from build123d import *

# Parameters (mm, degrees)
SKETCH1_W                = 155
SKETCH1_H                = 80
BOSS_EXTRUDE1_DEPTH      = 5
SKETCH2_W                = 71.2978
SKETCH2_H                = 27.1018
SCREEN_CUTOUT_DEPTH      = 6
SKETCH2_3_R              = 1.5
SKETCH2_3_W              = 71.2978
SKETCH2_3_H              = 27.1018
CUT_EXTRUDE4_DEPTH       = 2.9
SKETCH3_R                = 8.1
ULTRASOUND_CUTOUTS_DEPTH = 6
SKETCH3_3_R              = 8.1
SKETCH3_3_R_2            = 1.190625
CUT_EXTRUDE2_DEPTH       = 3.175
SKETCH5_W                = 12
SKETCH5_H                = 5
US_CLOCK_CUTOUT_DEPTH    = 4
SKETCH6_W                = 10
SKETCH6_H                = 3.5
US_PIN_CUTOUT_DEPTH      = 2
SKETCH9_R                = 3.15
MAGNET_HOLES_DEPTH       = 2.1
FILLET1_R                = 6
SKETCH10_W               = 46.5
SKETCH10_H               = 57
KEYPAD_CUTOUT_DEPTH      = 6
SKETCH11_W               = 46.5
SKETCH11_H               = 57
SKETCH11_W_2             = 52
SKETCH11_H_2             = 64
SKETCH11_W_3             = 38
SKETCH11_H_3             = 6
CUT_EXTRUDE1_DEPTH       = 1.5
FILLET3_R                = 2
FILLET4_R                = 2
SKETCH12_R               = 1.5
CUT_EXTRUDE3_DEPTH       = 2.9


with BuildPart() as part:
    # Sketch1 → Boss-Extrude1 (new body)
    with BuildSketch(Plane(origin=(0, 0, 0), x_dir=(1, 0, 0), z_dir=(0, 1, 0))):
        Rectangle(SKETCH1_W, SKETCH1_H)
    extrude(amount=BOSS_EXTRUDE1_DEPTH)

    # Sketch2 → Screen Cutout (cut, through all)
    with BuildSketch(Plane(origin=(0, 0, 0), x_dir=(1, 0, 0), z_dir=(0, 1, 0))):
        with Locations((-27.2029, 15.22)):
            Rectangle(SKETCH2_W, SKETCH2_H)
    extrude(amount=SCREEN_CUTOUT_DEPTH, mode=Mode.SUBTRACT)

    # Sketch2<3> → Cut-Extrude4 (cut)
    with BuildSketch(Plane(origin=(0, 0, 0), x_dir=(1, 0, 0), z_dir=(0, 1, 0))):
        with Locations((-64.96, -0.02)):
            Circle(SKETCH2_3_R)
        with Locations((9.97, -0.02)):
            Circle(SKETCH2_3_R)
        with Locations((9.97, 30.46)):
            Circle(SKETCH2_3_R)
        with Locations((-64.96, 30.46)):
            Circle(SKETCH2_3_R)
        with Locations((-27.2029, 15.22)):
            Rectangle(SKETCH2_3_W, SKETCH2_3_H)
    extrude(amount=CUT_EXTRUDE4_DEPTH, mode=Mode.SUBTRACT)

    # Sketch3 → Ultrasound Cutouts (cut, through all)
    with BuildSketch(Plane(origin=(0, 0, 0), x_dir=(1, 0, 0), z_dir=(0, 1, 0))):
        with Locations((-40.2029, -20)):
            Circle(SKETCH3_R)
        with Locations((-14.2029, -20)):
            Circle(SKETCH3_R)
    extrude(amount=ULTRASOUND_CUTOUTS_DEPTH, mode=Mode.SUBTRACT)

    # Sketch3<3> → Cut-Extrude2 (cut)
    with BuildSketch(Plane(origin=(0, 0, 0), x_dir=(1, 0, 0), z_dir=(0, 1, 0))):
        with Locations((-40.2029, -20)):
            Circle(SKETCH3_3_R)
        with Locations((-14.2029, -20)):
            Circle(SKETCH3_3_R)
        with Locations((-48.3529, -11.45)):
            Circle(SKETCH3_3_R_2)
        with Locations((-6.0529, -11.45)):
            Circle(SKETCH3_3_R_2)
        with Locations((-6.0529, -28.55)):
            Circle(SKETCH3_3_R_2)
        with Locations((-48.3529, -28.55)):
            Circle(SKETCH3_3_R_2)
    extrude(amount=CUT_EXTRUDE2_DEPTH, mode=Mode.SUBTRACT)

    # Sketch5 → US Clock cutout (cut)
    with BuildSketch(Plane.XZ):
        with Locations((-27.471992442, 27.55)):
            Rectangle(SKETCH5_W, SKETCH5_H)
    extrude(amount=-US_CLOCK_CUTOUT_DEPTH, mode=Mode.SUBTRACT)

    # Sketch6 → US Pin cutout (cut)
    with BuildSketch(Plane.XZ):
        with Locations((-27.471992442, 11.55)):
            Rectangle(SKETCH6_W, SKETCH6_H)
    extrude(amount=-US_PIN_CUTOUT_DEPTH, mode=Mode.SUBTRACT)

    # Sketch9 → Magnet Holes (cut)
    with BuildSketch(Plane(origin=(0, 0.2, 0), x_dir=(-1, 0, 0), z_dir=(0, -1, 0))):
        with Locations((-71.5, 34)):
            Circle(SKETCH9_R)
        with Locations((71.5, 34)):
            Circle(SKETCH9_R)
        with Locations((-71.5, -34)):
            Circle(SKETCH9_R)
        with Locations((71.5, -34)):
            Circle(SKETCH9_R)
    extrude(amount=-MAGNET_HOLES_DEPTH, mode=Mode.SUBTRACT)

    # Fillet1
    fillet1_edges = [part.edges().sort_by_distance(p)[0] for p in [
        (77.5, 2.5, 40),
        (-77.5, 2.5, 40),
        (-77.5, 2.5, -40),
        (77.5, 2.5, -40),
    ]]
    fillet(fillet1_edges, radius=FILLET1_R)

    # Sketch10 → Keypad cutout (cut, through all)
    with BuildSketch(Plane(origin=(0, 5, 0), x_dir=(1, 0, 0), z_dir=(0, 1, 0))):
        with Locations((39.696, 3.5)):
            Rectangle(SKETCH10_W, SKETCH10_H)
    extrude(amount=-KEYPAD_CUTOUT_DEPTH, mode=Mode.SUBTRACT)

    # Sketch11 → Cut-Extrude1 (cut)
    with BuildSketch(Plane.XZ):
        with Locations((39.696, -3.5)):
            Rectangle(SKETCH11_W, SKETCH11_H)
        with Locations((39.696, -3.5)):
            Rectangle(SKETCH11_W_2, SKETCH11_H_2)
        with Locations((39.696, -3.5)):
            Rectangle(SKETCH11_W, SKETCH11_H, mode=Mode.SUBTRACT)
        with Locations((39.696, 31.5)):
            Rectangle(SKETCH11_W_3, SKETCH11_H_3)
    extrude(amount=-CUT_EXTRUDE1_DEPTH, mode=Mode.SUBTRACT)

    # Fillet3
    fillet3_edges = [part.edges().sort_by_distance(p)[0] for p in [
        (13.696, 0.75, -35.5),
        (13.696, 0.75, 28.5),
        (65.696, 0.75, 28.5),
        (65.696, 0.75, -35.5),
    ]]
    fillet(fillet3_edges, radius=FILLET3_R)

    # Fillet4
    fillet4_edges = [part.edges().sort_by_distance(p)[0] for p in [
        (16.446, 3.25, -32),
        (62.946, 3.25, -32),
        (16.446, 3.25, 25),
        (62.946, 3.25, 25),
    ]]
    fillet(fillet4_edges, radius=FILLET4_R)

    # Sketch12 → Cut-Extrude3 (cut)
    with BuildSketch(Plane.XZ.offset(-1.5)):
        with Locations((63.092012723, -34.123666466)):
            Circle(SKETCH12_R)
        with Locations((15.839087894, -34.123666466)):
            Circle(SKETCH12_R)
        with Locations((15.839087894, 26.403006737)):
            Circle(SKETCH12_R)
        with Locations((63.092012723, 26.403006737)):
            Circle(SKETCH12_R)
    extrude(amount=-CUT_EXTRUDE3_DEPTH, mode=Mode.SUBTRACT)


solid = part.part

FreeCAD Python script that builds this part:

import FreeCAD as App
import Part
import Sketcher

V = App.Vector
Q = App.Units.Quantity


def edges_at(feature, points):
    """Names of the edges that pass closest to the given points."""
    edges = feature.Shape.Edges
    near = lambda p: min(range(len(edges)), key=lambda i: edges[i].distToShape(Part.Vertex(*p))[0])
    return sorted({f"Edge{near(p) + 1}" for p in points})


def add_polygon(sketch, points):
    """Adds a closed chain of lines whose ends are joined by coincident constraints."""
    first, n = sketch.GeometryCount, len(points)
    for a, b in zip(points, points[1:] + points[:1]):
        sketch.addGeometry(Part.LineSegment(App.Vector(*a, 0), App.Vector(*b, 0)), False)
    for i in range(n):
        sketch.addConstraint(Sketcher.Constraint("Coincident", first + i, 2, first + (i + 1) % n, 1))

doc = App.newDocument("Part")
body = doc.addObject("PartDesign::Body", "Body")

# Sketch on XZ plane
sketch1 = doc.addObject("Sketcher::SketchObject", "Sketch")
body.addObject(sketch1)
sketch1.AttachmentSupport = (doc.XZ_Plane, [""])
sketch1.MapMode = "FlatFace"
add_polygon(sketch1, [(-78, -40), (-78, 40), (78, 40), (78, -40)])  # lines 0-3
sketch1.addConstraint(Sketcher.Constraint("Vertical", 0))
sketch1.addConstraint(Sketcher.Constraint("Horizontal", 1))
sketch1.addConstraint(Sketcher.Constraint("Vertical", 2))
sketch1.addConstraint(Sketcher.Constraint("Horizontal", 3))
sketch1.addConstraint(Sketcher.Constraint("Symmetric", 0, 2, 2, 2, -1, 1))
sketch1.addConstraint(Sketcher.Constraint("DistanceX", 1, 1, 1, 2, Q("155 mm")))
sketch1.addConstraint(Sketcher.Constraint("DistanceY", 0, 1, 0, 2, Q("80 mm")))
pad1 = doc.addObject("PartDesign::Pad", "Pad")
body.addObject(pad1)
pad1.Profile = sketch1
pad1.Length = 5
pad1.Reversed = True

# Sketch on XZ plane
sketch2 = doc.addObject("Sketcher::SketchObject", "Sketch001")
body.addObject(sketch2)
sketch2.AttachmentSupport = (doc.XZ_Plane, [""])
sketch2.MapMode = "FlatFace"
add_polygon(sketch2, [(-63, -29), (-63, -2), (8, -2), (8, -29)])  # lines 0-3
sketch2.addConstraint(Sketcher.Constraint("Vertical", 0))
sketch2.addConstraint(Sketcher.Constraint("Horizontal", 1))
sketch2.addConstraint(Sketcher.Constraint("Vertical", 2))
sketch2.addConstraint(Sketcher.Constraint("Horizontal", 3))
sketch2.addConstraint(Sketcher.Constraint("DistanceX", 1, 1, 1, 2, Q("71.2978 mm")))
sketch2.addConstraint(Sketcher.Constraint("DistanceY", 0, 1, 0, 2, Q("27.1018 mm")))
sketch2.addConstraint(Sketcher.Constraint("DistanceX", -1, 1, 1, 2, Q("8.446 mm")))
sketch2.addConstraint(Sketcher.Constraint("DistanceY", 0, 2, -1, 1, Q("1.6691 mm")))
pocket1 = doc.addObject("PartDesign::Pocket", "Pocket")
body.addObject(pocket1)
pocket1.Profile = sketch2
pocket1.Type = "ThroughAll"

# Sketch on XZ plane
sketch3 = doc.addObject("Sketcher::SketchObject", "Sketch002")
body.addObject(sketch3)
sketch3.AttachmentSupport = (doc.XZ_Plane, [""])
sketch3.MapMode = "FlatFace"
sketch3.addGeometry(Part.Circle(V(-65, 0, 0), V(0, 0, 1), 1.5), False)  # 0
sketch3.addGeometry(Part.Circle(V(10, 0, 0), V(0, 0, 1), 1.5), False)  # 1
sketch3.addGeometry(Part.Circle(V(10, -30.5, 0), V(0, 0, 1), 1.5), False)  # 2
sketch3.addGeometry(Part.Circle(V(-65, -30.5, 0), V(0, 0, 1), 1.5), False)  # 3
add_polygon(sketch3, [(-62.9, -28.8), (-62.9, -1.7), (8.4, -1.7), (8.4, -28.8)])  # lines 4-7
sketch3.addConstraint(Sketcher.Constraint("Vertical", 4))
sketch3.addConstraint(Sketcher.Constraint("Horizontal", 5))
sketch3.addConstraint(Sketcher.Constraint("Vertical", 6))
sketch3.addConstraint(Sketcher.Constraint("Horizontal", 7))
sketch3.addConstraint(Sketcher.Constraint("Equal", 0, 1))
sketch3.addConstraint(Sketcher.Constraint("Equal", 1, 2))
sketch3.addConstraint(Sketcher.Constraint("Equal", 2, 3))
sketch3.addConstraint(Sketcher.Constraint("Horizontal", 0, 3, 1, 3))
sketch3.addConstraint(Sketcher.Constraint("Horizontal", 2, 3, 3, 3))
sketch3.addConstraint(Sketcher.Constraint("Vertical", 1, 3, 2, 3))
sketch3.addConstraint(Sketcher.Constraint("Vertical", 0, 3, 3, 3))
sketch3.addConstraint(Sketcher.Constraint("Diameter", 0, Q("3 mm")))
sketch3.addConstraint(Sketcher.Constraint("DistanceX", 0, 3, -1, 1, Q("64.96 mm")))
sketch3.addConstraint(Sketcher.Constraint("DistanceY", -1, 1, 0, 3, Q("0.02 mm")))
sketch3.addConstraint(Sketcher.Constraint("DistanceX", -1, 1, 1, 3, Q("9.97 mm")))
sketch3.addConstraint(Sketcher.Constraint("DistanceY", 2, 3, -1, 1, Q("30.46 mm")))
sketch3.addConstraint(Sketcher.Constraint("DistanceX", 5, 1, 5, 2, Q("71.2978 mm")))
sketch3.addConstraint(Sketcher.Constraint("DistanceY", 4, 1, 4, 2, Q("27.1018 mm")))
sketch3.addConstraint(Sketcher.Constraint("DistanceX", -1, 1, 5, 2, Q("8.446 mm")))
sketch3.addConstraint(Sketcher.Constraint("DistanceY", 4, 2, -1, 1, Q("1.6691 mm")))
pocket2 = doc.addObject("PartDesign::Pocket", "Pocket001")
body.addObject(pocket2)
pocket2.Profile = sketch3
pocket2.Length = 2.9

# Sketch on XZ plane
sketch4 = doc.addObject("Sketcher::SketchObject", "Sketch003")
body.addObject(sketch4)
sketch4.AttachmentSupport = (doc.XZ_Plane, [""])
sketch4.MapMode = "FlatFace"
sketch4.addGeometry(Part.Circle(V(-40, 20, 0), V(0, 0, 1), 8), False)
sketch4.addGeometry(Part.Circle(V(-14, 20, 0), V(0, 0, 1), 8), False)
sketch4.addConstraint(Sketcher.Constraint("Equal", 0, 1))
sketch4.addConstraint(Sketcher.Constraint("Horizontal", 0, 3, 1, 3))
sketch4.addConstraint(Sketcher.Constraint("Diameter", 0, Q("16.2 mm")))
sketch4.addConstraint(Sketcher.Constraint("DistanceY", -1, 1, 0, 3, Q("20 mm")))
sketch4.addConstraint(Sketcher.Constraint("DistanceX", 0, 3, 1, 3, Q("26 mm")))
sketch4.addConstraint(Sketcher.Constraint("DistanceX", 0, 3, -1, 1, Q("40.2029 mm")))
pocket3 = doc.addObject("PartDesign::Pocket", "Pocket002")
body.addObject(pocket3)
pocket3.Profile = sketch4
pocket3.Type = "ThroughAll"

# Sketch on XZ plane
sketch5 = doc.addObject("Sketcher::SketchObject", "Sketch004")
body.addObject(sketch5)
sketch5.AttachmentSupport = (doc.XZ_Plane, [""])
sketch5.MapMode = "FlatFace"
sketch5.addGeometry(Part.Circle(V(-40.2, 20, 0), V(0, 0, 1), 8.1), False)
sketch5.addGeometry(Part.Circle(V(-14.2, 20, 0), V(0, 0, 1), 8.1), False)
sketch5.addGeometry(Part.Circle(V(-48.4, 11.4, 0), V(0, 0, 1), 1.2), False)
sketch5.addGeometry(Part.Circle(V(-6.1, 11.4, 0), V(0, 0, 1), 1.2), False)
sketch5.addGeometry(Part.Circle(V(-6.1, 28.6, 0), V(0, 0, 1), 1.2), False)
sketch5.addGeometry(Part.Circle(V(-48.4, 28.6, 0), V(0, 0, 1), 1.2), False)
sketch5.addConstraint(Sketcher.Constraint("Equal", 0, 1))
sketch5.addConstraint(Sketcher.Constraint("Equal", 2, 3))
sketch5.addConstraint(Sketcher.Constraint("Equal", 3, 4))
sketch5.addConstraint(Sketcher.Constraint("Equal", 4, 5))
sketch5.addConstraint(Sketcher.Constraint("Horizontal", 0, 3, 1, 3))
sketch5.addConstraint(Sketcher.Constraint("Horizontal", 2, 3, 3, 3))
sketch5.addConstraint(Sketcher.Constraint("Horizontal", 4, 3, 5, 3))
sketch5.addConstraint(Sketcher.Constraint("Vertical", 3, 3, 4, 3))
sketch5.addConstraint(Sketcher.Constraint("Vertical", 2, 3, 5, 3))
sketch5.addConstraint(Sketcher.Constraint("Diameter", 0, Q("16.2 mm")))
sketch5.addConstraint(Sketcher.Constraint("DistanceY", -1, 1, 0, 3, Q("20 mm")))
sketch5.addConstraint(Sketcher.Constraint("DistanceX", 0, 3, 1, 3, Q("26 mm")))
sketch5.addConstraint(Sketcher.Constraint("DistanceX", 2, 3, 3, 3, Q("42.3 mm")))
sketch5.addConstraint(Sketcher.Constraint("DistanceY", 3, 3, 4, 3, Q("17.1 mm")))
sketch5.addConstraint(Sketcher.Constraint("Diameter", 2, Q("2.38125 mm")))
sketch5.addConstraint(Sketcher.Constraint("DistanceY", -1, 1, 2, 3, Q("11.45 mm")))
sketch5.addConstraint(Sketcher.Constraint("DistanceX", 2, 3, 0, 3, Q("8.15 mm")))
sketch5.addConstraint(Sketcher.Constraint("DistanceX", 0, 3, -1, 1, Q("40.2029 mm")))
pocket4 = doc.addObject("PartDesign::Pocket", "Pocket003")
body.addObject(pocket4)
pocket4.Profile = sketch5
pocket4.Length = 3.175

# Sketch on XZ plane
sketch6 = doc.addObject("Sketcher::SketchObject", "Sketch005")
body.addObject(sketch6)
sketch6.AttachmentSupport = (doc.XZ_Plane, [""])
sketch6.MapMode = "FlatFace"
add_polygon(sketch6, [(-33, 30), (-33, 25), (-21, 25), (-21, 30)])  # lines 0-3
sketch6.addConstraint(Sketcher.Constraint("Vertical", 0))
sketch6.addConstraint(Sketcher.Constraint("Horizontal", 1))
sketch6.addConstraint(Sketcher.Constraint("Vertical", 2))
sketch6.addConstraint(Sketcher.Constraint("Horizontal", 3))
sketch6.addConstraint(Sketcher.Constraint("DistanceX", 1, 1, 1, 2, Q("12 mm")))
sketch6.addConstraint(Sketcher.Constraint("DistanceY", 0, 2, 0, 1, Q("5 mm")))
sketch6.addConstraint(Sketcher.Constraint("DistanceY", -1, 1, 0, 2, Q("25.05 mm")))
sketch6.addConstraint(Sketcher.Constraint("DistanceX", 0, 2, -1, 1, Q("33.471992 mm")))
pocket5 = doc.addObject("PartDesign::Pocket", "Pocket004")
body.addObject(pocket5)
pocket5.Profile = sketch6
pocket5.Length = 4

# Sketch on XZ plane
sketch7 = doc.addObject("Sketcher::SketchObject", "Sketch006")
body.addObject(sketch7)
sketch7.AttachmentSupport = (doc.XZ_Plane, [""])
sketch7.MapMode = "FlatFace"
add_polygon(sketch7, [(-32.5, 13.3), (-32.5, 9.8), (-22.5, 9.8), (-22.5, 13.3)])  # lines 0-3
sketch7.addConstraint(Sketcher.Constraint("Vertical", 0))
sketch7.addConstraint(Sketcher.Constraint("Horizontal", 1))
sketch7.addConstraint(Sketcher.Constraint("Vertical", 2))
sketch7.addConstraint(Sketcher.Constraint("Horizontal", 3))
sketch7.addConstraint(Sketcher.Constraint("DistanceX", 1, 1, 1, 2, Q("10 mm")))
sketch7.addConstraint(Sketcher.Constraint("DistanceY", 0, 2, 0, 1, Q("3.5 mm")))
sketch7.addConstraint(Sketcher.Constraint("DistanceY", -1, 1, 0, 2, Q("9.8 mm")))
sketch7.addConstraint(Sketcher.Constraint("DistanceX", 0, 2, -1, 1, Q("32.471992 mm")))
pocket6 = doc.addObject("PartDesign::Pocket", "Pocket005")
body.addObject(pocket6)
pocket6.Profile = sketch7
pocket6.Length = 2

# Sketch on XZ plane
sketch8 = doc.addObject("Sketcher::SketchObject", "Sketch007")
body.addObject(sketch8)
sketch8.AttachmentSupport = (doc.XZ_Plane, [""])
sketch8.MapMode = "FlatFace"
sketch8.AttachmentOffset = App.Placement(V(0, 0, -0.2), App.Rotation())
sketch8.addGeometry(Part.Circle(V(71.5, -34, 0), V(0, 0, 1), 3.1), False)
sketch8.addGeometry(Part.Circle(V(-71.5, -34, 0), V(0, 0, 1), 3.1), False)
sketch8.addGeometry(Part.Circle(V(71.5, 34, 0), V(0, 0, 1), 3.1), False)
sketch8.addGeometry(Part.Circle(V(-71.5, 34, 0), V(0, 0, 1), 3.1), False)
sketch8.addConstraint(Sketcher.Constraint("Equal", 0, 1))
sketch8.addConstraint(Sketcher.Constraint("Equal", 1, 2))
sketch8.addConstraint(Sketcher.Constraint("Equal", 2, 3))
sketch8.addConstraint(Sketcher.Constraint("Symmetric", 1, 3, 2, 3, -1, 1))
sketch8.addConstraint(Sketcher.Constraint("Symmetric", 0, 3, 3, 3, -1, 1))
sketch8.addConstraint(Sketcher.Constraint("Symmetric", 0, 3, 1, 3, -2))
sketch8.addConstraint(Sketcher.Constraint("Diameter", 0, Q("6.3 mm")))
sketch8.addConstraint(Sketcher.Constraint("DistanceY", 0, 3, -1, 1, Q("34 mm")))
sketch8.addConstraint(Sketcher.Constraint("DistanceX", 1, 3, 0, 3, Q("143 mm")))
pocket7 = doc.addObject("PartDesign::Pocket", "Pocket006")
body.addObject(pocket7)
pocket7.Profile = sketch8
pocket7.Length = 2.1
doc.recompute()

fillet = doc.addObject("PartDesign::Fillet", "Fillet")
body.addObject(fillet)
fillet.Base = (pocket7, edges_at(pocket7, [
    (77.5, 2.5, 40),
    (-77.5, 2.5, 40),
    (-77.5, 2.5, -40),
    (77.5, 2.5, -40),
]))
fillet.Radius = 6

# Sketch on XZ plane
sketch9 = doc.addObject("Sketcher::SketchObject", "Sketch008")
body.addObject(sketch9)
sketch9.AttachmentSupport = (doc.XZ_Plane, [""])
sketch9.MapMode = "FlatFace"
sketch9.AttachmentOffset = App.Placement(V(0, 0, -5), App.Rotation())
add_polygon(sketch9, [(16, -32), (16, 25), (63, 25), (63, -32)])  # lines 0-3
sketch9.addConstraint(Sketcher.Constraint("Vertical", 0))
sketch9.addConstraint(Sketcher.Constraint("Horizontal", 1))
sketch9.addConstraint(Sketcher.Constraint("Vertical", 2))
sketch9.addConstraint(Sketcher.Constraint("Horizontal", 3))
sketch9.addConstraint(Sketcher.Constraint("DistanceY", 0, 1, 0, 2, Q("57 mm")))
sketch9.addConstraint(Sketcher.Constraint("DistanceX", 1, 1, 1, 2, Q("46.5 mm")))
sketch9.addConstraint(Sketcher.Constraint("DistanceY", -1, 1, 0, 2, Q("25 mm")))
sketch9.addConstraint(Sketcher.Constraint("DistanceX", -1, 1, 0, 2, Q("16.446 mm")))
pocket8 = doc.addObject("PartDesign::Pocket", "Pocket007")
body.addObject(pocket8)
pocket8.Profile = sketch9
pocket8.Type = "ThroughAll"
pocket8.Reversed = True

# Sketch on XZ plane
sketch10 = doc.addObject("Sketcher::SketchObject", "Sketch009")
body.addObject(sketch10)
sketch10.AttachmentSupport = (doc.XZ_Plane, [""])
sketch10.MapMode = "FlatFace"
add_polygon(sketch10, [(14, 28), (14, -36), (66, -36), (66, 28), (59, 28), (59, 34), (21, 34), (21, 28)])  # lines 0-7
add_polygon(sketch10, [(63, -32), (16, -32), (16, 25), (63, 25)])  # lines 8-11
sketch10.addConstraint(Sketcher.Constraint("Vertical", 0))
sketch10.addConstraint(Sketcher.Constraint("Horizontal", 1))
sketch10.addConstraint(Sketcher.Constraint("Vertical", 2))
sketch10.addConstraint(Sketcher.Constraint("Horizontal", 3))
sketch10.addConstraint(Sketcher.Constraint("Vertical", 4))
sketch10.addConstraint(Sketcher.Constraint("Horizontal", 5))
sketch10.addConstraint(Sketcher.Constraint("Vertical", 6))
sketch10.addConstraint(Sketcher.Constraint("Horizontal", 7))
sketch10.addConstraint(Sketcher.Constraint("Horizontal", 8))
sketch10.addConstraint(Sketcher.Constraint("Vertical", 9))
sketch10.addConstraint(Sketcher.Constraint("Horizontal", 10))
sketch10.addConstraint(Sketcher.Constraint("Vertical", 11))
sketch10.addConstraint(Sketcher.Constraint("Horizontal", 3, 2, 6, 2))
sketch10.addConstraint(Sketcher.Constraint("Equal", 3, 7))
sketch10.addConstraint(Sketcher.Constraint("DistanceX", 1, 1, 1, 2, Q("52 mm")))
sketch10.addConstraint(Sketcher.Constraint("DistanceX", 3, 2, 3, 1, Q("7 mm")))
sketch10.addConstraint(Sketcher.Constraint("DistanceY", 0, 2, 0, 1, Q("64 mm")))
sketch10.addConstraint(Sketcher.Constraint("DistanceY", 4, 1, 4, 2, Q("6 mm")))
sketch10.addConstraint(Sketcher.Constraint("DistanceY", 9, 1, 9, 2, Q("57 mm")))
sketch10.addConstraint(Sketcher.Constraint("DistanceX", 8, 2, 8, 1, Q("46.5 mm")))
sketch10.addConstraint(Sketcher.Constraint("DistanceY", 8, 2, -1, 1, Q("32 mm")))
sketch10.addConstraint(Sketcher.Constraint("DistanceY", 0, 2, -1, 1, Q("35.5 mm")))
sketch10.addConstraint(Sketcher.Constraint("DistanceX", 0, 2, 8, 2, Q("2.75 mm")))
sketch10.addConstraint(Sketcher.Constraint("DistanceX", -1, 1, 0, 2, Q("13.696 mm")))
pocket9 = doc.addObject("PartDesign::Pocket", "Pocket008")
body.addObject(pocket9)
pocket9.Profile = sketch10
pocket9.Length = 1.5
doc.recompute()

fillet2 = doc.addObject("PartDesign::Fillet", "Fillet001")
body.addObject(fillet2)
fillet2.Base = (pocket9, edges_at(pocket9, [
    (13.696, 0.75, -35.5),
    (13.696, 0.75, 28.5),
    (65.696, 0.75, 28.5),
    (65.696, 0.75, -35.5),
]))
fillet2.Radius = 2
doc.recompute()

fillet3 = doc.addObject("PartDesign::Fillet", "Fillet002")
body.addObject(fillet3)
fillet3.Base = (fillet2, edges_at(fillet2, [
    (16.446, 3.25, -32),
    (62.946, 3.25, -32),
    (16.446, 3.25, 25),
    (62.946, 3.25, 25),
]))
fillet3.Radius = 2

# Sketch on XZ plane
sketch11 = doc.addObject("Sketcher::SketchObject", "Sketch010")
body.addObject(sketch11)
sketch11.AttachmentSupport = (doc.XZ_Plane, [""])
sketch11.MapMode = "FlatFace"
sketch11.AttachmentOffset = App.Placement(V(0, 0, -1.5), App.Rotation())
sketch11.addGeometry(Part.Circle(V(63.1, -34.1, 0), V(0, 0, 1), 1.5), False)
sketch11.addGeometry(Part.Circle(V(15.8, -34.1, 0), V(0, 0, 1), 1.5), False)
sketch11.addGeometry(Part.Circle(V(15.8, 26.4, 0), V(0, 0, 1), 1.5), False)
sketch11.addGeometry(Part.Circle(V(63.1, 26.4, 0), V(0, 0, 1), 1.5), False)
sketch11.addConstraint(Sketcher.Constraint("Equal", 0, 1))
sketch11.addConstraint(Sketcher.Constraint("Equal", 1, 2))
sketch11.addConstraint(Sketcher.Constraint("Equal", 2, 3))
sketch11.addConstraint(Sketcher.Constraint("Horizontal", 0, 3, 1, 3))
sketch11.addConstraint(Sketcher.Constraint("Horizontal", 2, 3, 3, 3))
sketch11.addConstraint(Sketcher.Constraint("Vertical", 1, 3, 2, 3))
sketch11.addConstraint(Sketcher.Constraint("Vertical", 0, 3, 3, 3))
sketch11.addConstraint(Sketcher.Constraint("Diameter", 0, Q("3 mm")))
sketch11.addConstraint(Sketcher.Constraint("DistanceX", -1, 1, 0, 3, Q("63.092013 mm")))
sketch11.addConstraint(Sketcher.Constraint("DistanceY", 0, 3, -1, 1, Q("34.123666 mm")))
sketch11.addConstraint(Sketcher.Constraint("DistanceX", -1, 1, 1, 3, Q("15.839088 mm")))
sketch11.addConstraint(Sketcher.Constraint("DistanceY", -1, 1, 2, 3, Q("26.403007 mm")))
pocket10 = doc.addObject("PartDesign::Pocket", "Pocket009")
body.addObject(pocket10)
pocket10.Profile = sketch11
pocket10.Length = 2.9

doc.recompute()
